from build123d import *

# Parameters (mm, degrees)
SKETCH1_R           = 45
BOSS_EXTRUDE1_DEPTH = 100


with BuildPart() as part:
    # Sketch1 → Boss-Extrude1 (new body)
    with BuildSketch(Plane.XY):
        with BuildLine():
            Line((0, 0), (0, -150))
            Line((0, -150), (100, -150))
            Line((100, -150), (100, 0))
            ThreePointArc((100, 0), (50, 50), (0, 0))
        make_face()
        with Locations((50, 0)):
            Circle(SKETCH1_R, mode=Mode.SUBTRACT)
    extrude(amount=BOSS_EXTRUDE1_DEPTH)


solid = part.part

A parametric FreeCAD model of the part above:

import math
import FreeCAD as App
import Part
import Sketcher

V = App.Vector
Q = App.Units.Quantity

doc = App.newDocument("Part")
params = doc.addObject("Spreadsheet::Sheet", "Params")
for row, (alias, value) in enumerate([
    ("sketch1_diameter", "90 mm"),
    ("sketch1_radius", "50 mm"),
    ("sketch1_height", "150 mm"),
    ("pad1_length", "100 mm"),
], start=1):
    params.set(f"A{row}", alias)
    params.set(f"B{row}", "=" + value)
    params.setAlias(f"B{row}", alias)

body = doc.addObject("PartDesign::Body", "Body")

sketch1 = doc.addObject("Sketcher::SketchObject", "Sketch")
body.addObject(sketch1)
sketch1.AttachmentSupport = (doc.XY_Plane, [""])
sketch1.MapMode = "FlatFace"
sketch1.addGeometry([
    Part.LineSegment(V(0, 0, 0), V(0, -150, 0)),
    Part.LineSegment(V(0, -150, 0), V(100, -150, 0)),
    Part.LineSegment(V(100, -150, 0), V(100, 0, 0)),
    Part.ArcOfCircle(Part.Circle(V(50, 0, 0), V(0, 0, 1), 50), math.radians(0), math.radians(180)),
    Part.Circle(V(50, 0, 0), V(0, 0, 1), 45),
], False)
sketch1.addConstraint([
    Sketcher.Constraint("Coincident", 0, 2, 1, 1),
    Sketcher.Constraint("Coincident", 1, 2, 2, 1),
    Sketcher.Constraint("Tangent", 2, 2, 3, 1),
    Sketcher.Constraint("Tangent", 3, 2, 0, 1),
    Sketcher.Constraint("Vertical", 0),
    Sketcher.Constraint("Horizontal", 1),
    Sketcher.Constraint("Vertical", 2),
    Sketcher.Constraint("Coincident", 3, 2, -1, 1),
    Sketcher.Constraint("Coincident", 4, 3, 3, 3),
    Sketcher.Constraint("Diameter", 4, Q("90 mm")),
    Sketcher.Constraint("Radius", 3, Q("50 mm")),
    Sketcher.Constraint("DistanceY", 0, 2, 0, 1, Q("150 mm")),
])
sketch1.setExpression("Constraints[9]", "Params.sketch1_diameter")
sketch1.setExpression("Constraints[10]", "Params.sketch1_radius")
sketch1.setExpression("Constraints[11]", "Params.sketch1_height")
pad1 = doc.addObject("PartDesign::Pad", "Pad")
body.addObject(pad1)
pad1.Profile = sketch1
pad1.setExpression("Length", "Params.pad1_length")

doc.recompute()
